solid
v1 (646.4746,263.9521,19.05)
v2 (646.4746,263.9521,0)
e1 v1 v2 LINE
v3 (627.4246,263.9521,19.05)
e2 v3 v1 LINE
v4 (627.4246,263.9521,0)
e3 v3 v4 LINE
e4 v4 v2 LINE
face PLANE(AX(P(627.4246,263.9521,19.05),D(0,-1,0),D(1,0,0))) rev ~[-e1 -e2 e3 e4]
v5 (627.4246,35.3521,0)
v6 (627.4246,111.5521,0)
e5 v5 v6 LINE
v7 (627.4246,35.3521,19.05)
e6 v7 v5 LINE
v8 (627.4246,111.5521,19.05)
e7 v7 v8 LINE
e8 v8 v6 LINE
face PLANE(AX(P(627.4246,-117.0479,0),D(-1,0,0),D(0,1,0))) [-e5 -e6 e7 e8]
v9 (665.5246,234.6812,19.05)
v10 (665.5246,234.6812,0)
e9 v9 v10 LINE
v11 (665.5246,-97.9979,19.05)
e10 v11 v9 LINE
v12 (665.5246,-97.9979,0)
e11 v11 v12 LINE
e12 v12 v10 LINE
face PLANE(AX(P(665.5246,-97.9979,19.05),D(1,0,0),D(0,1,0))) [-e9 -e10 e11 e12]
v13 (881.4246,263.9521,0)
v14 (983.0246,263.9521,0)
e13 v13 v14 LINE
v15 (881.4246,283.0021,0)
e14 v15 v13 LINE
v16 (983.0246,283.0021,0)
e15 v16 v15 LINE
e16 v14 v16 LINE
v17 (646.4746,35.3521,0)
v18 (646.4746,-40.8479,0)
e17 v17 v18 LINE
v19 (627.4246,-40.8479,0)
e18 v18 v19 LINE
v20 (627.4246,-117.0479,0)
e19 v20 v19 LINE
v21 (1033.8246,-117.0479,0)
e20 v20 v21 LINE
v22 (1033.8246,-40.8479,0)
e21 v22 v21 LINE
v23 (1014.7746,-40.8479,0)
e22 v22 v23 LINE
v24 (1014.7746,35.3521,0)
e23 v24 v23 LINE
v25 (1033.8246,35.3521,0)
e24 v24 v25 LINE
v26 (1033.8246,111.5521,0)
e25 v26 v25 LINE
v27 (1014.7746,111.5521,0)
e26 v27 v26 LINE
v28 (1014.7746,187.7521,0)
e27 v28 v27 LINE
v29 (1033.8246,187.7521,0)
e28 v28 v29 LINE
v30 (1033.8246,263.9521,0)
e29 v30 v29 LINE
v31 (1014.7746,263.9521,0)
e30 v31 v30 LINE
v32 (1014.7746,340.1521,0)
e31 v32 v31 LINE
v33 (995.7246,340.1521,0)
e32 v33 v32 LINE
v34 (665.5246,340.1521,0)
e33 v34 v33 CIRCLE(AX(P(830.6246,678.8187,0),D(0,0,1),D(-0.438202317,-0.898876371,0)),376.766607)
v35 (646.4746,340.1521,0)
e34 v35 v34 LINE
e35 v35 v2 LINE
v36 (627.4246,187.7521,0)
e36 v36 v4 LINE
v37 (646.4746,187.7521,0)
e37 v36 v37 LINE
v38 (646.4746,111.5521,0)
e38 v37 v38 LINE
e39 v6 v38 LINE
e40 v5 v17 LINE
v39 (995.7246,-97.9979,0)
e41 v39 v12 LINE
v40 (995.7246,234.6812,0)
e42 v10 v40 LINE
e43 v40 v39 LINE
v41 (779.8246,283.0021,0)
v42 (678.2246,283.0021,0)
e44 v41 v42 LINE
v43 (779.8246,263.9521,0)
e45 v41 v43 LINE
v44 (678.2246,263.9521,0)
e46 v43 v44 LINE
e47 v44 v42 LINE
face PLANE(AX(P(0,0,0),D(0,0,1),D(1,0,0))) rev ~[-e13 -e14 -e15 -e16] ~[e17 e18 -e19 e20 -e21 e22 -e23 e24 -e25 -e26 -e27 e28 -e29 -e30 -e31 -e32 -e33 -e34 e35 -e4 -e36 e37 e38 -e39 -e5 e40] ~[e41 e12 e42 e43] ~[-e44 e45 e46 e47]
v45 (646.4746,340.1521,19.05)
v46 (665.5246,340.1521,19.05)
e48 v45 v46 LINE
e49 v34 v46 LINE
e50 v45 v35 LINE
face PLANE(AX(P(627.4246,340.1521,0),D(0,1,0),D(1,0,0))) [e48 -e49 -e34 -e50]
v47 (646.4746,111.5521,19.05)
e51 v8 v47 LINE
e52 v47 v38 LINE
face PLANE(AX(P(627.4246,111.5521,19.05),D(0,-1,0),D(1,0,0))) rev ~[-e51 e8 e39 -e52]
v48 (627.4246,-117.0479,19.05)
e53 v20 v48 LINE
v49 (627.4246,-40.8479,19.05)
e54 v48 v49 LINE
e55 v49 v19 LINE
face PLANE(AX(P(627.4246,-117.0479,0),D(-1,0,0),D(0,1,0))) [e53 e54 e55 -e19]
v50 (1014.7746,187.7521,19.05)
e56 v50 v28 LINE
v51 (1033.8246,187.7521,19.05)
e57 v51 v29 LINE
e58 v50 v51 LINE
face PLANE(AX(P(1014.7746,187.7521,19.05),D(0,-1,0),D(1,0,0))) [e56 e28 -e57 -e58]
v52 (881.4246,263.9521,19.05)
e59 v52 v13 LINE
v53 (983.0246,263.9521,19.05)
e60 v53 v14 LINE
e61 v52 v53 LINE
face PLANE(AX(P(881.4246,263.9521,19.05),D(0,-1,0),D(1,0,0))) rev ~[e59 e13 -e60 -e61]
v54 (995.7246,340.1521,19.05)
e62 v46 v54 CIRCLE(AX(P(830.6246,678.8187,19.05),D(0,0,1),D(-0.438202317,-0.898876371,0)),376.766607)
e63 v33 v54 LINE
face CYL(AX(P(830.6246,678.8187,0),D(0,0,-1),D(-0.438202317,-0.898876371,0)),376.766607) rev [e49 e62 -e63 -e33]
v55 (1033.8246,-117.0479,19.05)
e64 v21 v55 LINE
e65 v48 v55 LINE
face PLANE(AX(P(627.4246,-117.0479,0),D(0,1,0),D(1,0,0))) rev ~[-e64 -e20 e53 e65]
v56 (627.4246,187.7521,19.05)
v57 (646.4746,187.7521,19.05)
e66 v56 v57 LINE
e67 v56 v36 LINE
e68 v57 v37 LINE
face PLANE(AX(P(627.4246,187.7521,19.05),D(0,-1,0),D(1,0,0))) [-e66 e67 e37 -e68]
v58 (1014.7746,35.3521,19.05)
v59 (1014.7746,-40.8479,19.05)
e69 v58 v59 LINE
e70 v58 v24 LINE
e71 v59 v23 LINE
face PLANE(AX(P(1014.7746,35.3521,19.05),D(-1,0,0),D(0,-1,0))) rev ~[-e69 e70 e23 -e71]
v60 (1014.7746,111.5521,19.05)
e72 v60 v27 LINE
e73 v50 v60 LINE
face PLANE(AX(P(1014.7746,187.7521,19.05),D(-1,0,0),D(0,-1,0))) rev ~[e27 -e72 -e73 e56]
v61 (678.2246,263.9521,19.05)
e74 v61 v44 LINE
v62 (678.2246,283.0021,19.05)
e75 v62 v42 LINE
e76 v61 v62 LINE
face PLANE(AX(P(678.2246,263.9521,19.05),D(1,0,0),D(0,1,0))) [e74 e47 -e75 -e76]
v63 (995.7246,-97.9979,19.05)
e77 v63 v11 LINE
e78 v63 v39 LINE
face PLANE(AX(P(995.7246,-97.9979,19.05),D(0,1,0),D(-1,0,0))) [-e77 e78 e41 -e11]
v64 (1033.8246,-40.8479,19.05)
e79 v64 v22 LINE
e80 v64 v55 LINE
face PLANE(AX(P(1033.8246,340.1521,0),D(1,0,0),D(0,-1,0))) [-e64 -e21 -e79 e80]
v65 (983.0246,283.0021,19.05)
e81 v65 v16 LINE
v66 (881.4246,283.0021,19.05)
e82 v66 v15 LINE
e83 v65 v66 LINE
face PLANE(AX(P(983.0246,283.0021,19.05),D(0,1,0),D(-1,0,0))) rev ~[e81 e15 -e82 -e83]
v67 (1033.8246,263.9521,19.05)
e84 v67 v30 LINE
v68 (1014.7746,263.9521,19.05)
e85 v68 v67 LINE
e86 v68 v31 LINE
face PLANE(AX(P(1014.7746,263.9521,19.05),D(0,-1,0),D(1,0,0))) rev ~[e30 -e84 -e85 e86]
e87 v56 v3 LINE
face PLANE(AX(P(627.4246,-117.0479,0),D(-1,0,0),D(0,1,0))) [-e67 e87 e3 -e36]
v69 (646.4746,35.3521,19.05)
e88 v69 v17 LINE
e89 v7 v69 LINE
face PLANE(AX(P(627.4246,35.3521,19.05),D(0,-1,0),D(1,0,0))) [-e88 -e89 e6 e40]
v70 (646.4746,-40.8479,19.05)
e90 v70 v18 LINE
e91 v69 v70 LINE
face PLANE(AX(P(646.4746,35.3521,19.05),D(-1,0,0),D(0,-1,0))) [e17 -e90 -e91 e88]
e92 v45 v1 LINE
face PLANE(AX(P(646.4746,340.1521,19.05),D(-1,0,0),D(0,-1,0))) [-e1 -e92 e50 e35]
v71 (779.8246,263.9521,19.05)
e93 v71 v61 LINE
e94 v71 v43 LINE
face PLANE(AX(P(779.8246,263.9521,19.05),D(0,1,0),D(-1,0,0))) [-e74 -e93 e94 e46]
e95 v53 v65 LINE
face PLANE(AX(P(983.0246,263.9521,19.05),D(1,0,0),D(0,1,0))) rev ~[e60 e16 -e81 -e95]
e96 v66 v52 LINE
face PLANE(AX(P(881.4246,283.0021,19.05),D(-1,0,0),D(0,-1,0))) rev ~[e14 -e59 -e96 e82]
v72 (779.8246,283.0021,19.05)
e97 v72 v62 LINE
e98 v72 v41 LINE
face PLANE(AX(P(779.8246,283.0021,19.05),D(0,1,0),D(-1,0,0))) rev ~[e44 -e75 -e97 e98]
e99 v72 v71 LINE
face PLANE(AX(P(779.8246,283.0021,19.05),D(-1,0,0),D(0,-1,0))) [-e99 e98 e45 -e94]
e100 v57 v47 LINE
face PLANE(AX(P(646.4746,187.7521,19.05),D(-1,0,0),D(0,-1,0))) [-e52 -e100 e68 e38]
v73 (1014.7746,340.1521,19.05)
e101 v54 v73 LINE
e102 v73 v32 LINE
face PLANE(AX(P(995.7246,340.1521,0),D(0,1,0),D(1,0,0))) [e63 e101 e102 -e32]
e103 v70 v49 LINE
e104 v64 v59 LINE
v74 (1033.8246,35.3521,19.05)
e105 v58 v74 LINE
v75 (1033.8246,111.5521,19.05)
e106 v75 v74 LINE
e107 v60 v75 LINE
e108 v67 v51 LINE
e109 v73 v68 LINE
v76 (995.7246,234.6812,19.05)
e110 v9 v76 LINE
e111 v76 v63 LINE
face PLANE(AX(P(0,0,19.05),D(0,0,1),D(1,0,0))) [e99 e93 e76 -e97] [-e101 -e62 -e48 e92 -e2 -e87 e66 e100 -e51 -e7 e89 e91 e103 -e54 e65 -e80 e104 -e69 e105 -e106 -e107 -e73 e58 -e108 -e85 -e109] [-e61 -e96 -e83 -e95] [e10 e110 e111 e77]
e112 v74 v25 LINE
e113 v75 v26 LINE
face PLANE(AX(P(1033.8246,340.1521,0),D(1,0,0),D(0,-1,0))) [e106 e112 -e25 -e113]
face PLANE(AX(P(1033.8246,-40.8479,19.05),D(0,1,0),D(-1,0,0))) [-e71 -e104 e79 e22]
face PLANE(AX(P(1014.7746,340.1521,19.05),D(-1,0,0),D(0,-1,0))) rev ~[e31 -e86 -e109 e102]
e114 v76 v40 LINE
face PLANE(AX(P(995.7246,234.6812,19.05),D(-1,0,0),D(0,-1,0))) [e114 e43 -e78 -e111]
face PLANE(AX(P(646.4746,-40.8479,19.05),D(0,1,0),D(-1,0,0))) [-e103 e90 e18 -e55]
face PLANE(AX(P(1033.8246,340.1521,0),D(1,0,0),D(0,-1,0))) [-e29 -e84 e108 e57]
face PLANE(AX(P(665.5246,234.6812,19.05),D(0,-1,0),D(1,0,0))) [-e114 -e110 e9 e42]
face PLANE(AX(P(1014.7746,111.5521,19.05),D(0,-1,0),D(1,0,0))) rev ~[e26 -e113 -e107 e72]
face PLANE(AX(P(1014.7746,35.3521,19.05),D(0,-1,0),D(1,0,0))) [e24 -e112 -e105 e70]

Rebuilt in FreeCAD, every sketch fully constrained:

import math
import FreeCAD as App
import Part
import Sketcher

V = App.Vector
Q = App.Units.Quantity

doc = App.newDocument("Part")
body = doc.addObject("PartDesign::Body", "Body")

# Sketch on XY plane
sketch1 = body.newObject("Sketcher::SketchObject", "Sketch")
sketch1.AttachmentSupport = (doc.getObject("XY_Plane"), [""])
sketch1.MapMode = "FlatFace"
sketch1.addGeometry([
    Part.LineSegment(V(1034, -117, 0), V(1034, 340, 0)),  # 0
    Part.LineSegment(V(1034, 340, 0), V(996, 340, 0)),  # 1
    Part.ArcOfCircle(Part.Circle(V(831, 679, 0), V(0, 0, 1), 377), math.radians(-116), math.radians(-64)),  # 2
    Part.LineSegment(V(666, 340, 0), V(627, 340, 0)),  # 3
    Part.LineSegment(V(627, 340, 0), V(627, -117, 0)),  # 4
    Part.LineSegment(V(627, -117, 0), V(1034, -117, 0)),  # 5
], False)
sketch1.addConstraint([
    Sketcher.Constraint("Coincident", 0, 2, 1, 1),
    Sketcher.Constraint("Coincident", 1, 2, 2, 2),
    Sketcher.Constraint("Coincident", 2, 1, 3, 1),
    Sketcher.Constraint("Coincident", 3, 2, 4, 1),
    Sketcher.Constraint("Coincident", 4, 2, 5, 1),
    Sketcher.Constraint("Coincident", 5, 2, 0, 1),
    Sketcher.Constraint("Vertical", 0),
    Sketcher.Constraint("Horizontal", 1),
    Sketcher.Constraint("Horizontal", 3),
    Sketcher.Constraint("Vertical", 4),
    Sketcher.Constraint("Horizontal", 5),
    Sketcher.Constraint("Horizontal", 1, 2, 2, 1),
    Sketcher.Constraint("Equal", 1, 3),
    Sketcher.Constraint("DistanceX", 5, 1, 5, 2, Q("16 in")),
    Sketcher.Constraint("DistanceY", 0, 1, 0, 2, Q("18 in")),
    Sketcher.Constraint("DistanceX", 1, 2, 1, 1, Q("1.5 in")),
    Sketcher.Constraint("Radius", 2, 376.7666),
    Sketcher.Constraint("DistanceX", -1, 1, 2, 3, 830.6246),
    Sketcher.Constraint("DistanceY", -1, 1, 2, 3, 678.8187),
])
pad1 = body.newObject("PartDesign::Pad", "Pad")
pad1.Profile = sketch1
pad1.Length = Q("0.75 in")

# Sketch on XY plane
sketch2 = body.newObject("Sketcher::SketchObject", "Sketch001")
sketch2.AttachmentSupport = (doc.getObject("XY_Plane"), [""])
sketch2.MapMode = "FlatFace"
sketch2.AttachmentOffset = App.Placement(V(0, 0, 0.75 * 25.4), App.Rotation())
sketch2.addGeometry([
    Part.LineSegment(V(1034, 264, 0), V(1034, 340, 0)),  # 0
    Part.LineSegment(V(1034, 340, 0), V(1015, 340, 0)),  # 1
    Part.LineSegment(V(1015, 340, 0), V(1015, 264, 0)),  # 2
    Part.LineSegment(V(1015, 264, 0), V(1034, 264, 0)),  # 3
    Part.LineSegment(V(646, 264, 0), V(646, 340, 0)),  # 4
    Part.LineSegment(V(646, 340, 0), V(627, 340, 0)),  # 5
    Part.LineSegment(V(627, 340, 0), V(627, 264, 0)),  # 6
    Part.LineSegment(V(627, 264, 0), V(646, 264, 0)),  # 7
    Part.LineSegment(V(1034, 112, 0), V(1034, 188, 0)),  # 8
    Part.LineSegment(V(1034, 188, 0), V(1015, 188, 0)),  # 9
    Part.LineSegment(V(1015, 188, 0), V(1015, 112, 0)),  # 10
    Part.LineSegment(V(1015, 112, 0), V(1034, 112, 0)),  # 11
    Part.LineSegment(V(646, 112, 0), V(646, 188, 0)),  # 12
    Part.LineSegment(V(646, 188, 0), V(627, 188, 0)),  # 13
    Part.LineSegment(V(627, 188, 0), V(627, 112, 0)),  # 14
    Part.LineSegment(V(627, 112, 0), V(646, 112, 0)),  # 15
    Part.LineSegment(V(1034, -41, 0), V(1034, 35, 0)),  # 16
    Part.LineSegment(V(1034, 35, 0), V(1015, 35, 0)),  # 17
    Part.LineSegment(V(1015, 35, 0), V(1015, -41, 0)),  # 18
    Part.LineSegment(V(1015, -41, 0), V(1034, -41, 0)),  # 19
    Part.LineSegment(V(646, -41, 0), V(646, 35, 0)),  # 20
    Part.LineSegment(V(646, 35, 0), V(627, 35, 0)),  # 21
    Part.LineSegment(V(627, 35, 0), V(627, -41, 0)),  # 22
    Part.LineSegment(V(627, -41, 0), V(646, -41, 0)),  # 23
], False)
sketch2.addConstraint([
    Sketcher.Constraint("Coincident", 0, 2, 1, 1),
    Sketcher.Constraint("Coincident", 1, 2, 2, 1),
    Sketcher.Constraint("Coincident", 2, 2, 3, 1),
    Sketcher.Constraint("Coincident", 3, 2, 0, 1),
    Sketcher.Constraint("Coincident", 4, 2, 5, 1),
    Sketcher.Constraint("Coincident", 5, 2, 6, 1),
    Sketcher.Constraint("Coincident", 6, 2, 7, 1),
    Sketcher.Constraint("Coincident", 7, 2, 4, 1),
    Sketcher.Constraint("Coincident", 8, 2, 9, 1),
    Sketcher.Constraint("Coincident", 9, 2, 10, 1),
    Sketcher.Constraint("Coincident", 10, 2, 11, 1),
    Sketcher.Constraint("Coincident", 11, 2, 8, 1),
    Sketcher.Constraint("Coincident", 12, 2, 13, 1),
    Sketcher.Constraint("Coincident", 13, 2, 14, 1),
    Sketcher.Constraint("Coincident", 14, 2, 15, 1),
    Sketcher.Constraint("Coincident", 15, 2, 12, 1),
    Sketcher.Constraint("Coincident", 16, 2, 17, 1),
    Sketcher.Constraint("Coincident", 17, 2, 18, 1),
    Sketcher.Constraint("Coincident", 18, 2, 19, 1),
    Sketcher.Constraint("Coincident", 19, 2, 16, 1),
    Sketcher.Constraint("Coincident", 20, 2, 21, 1),
    Sketcher.Constraint("Coincident", 21, 2, 22, 1),
    Sketcher.Constraint("Coincident", 22, 2, 23, 1),
    Sketcher.Constraint("Coincident", 23, 2, 20, 1),
    Sketcher.Constraint("Vertical", 0),
    Sketcher.Constraint("Horizontal", 1),
    Sketcher.Constraint("Vertical", 2),
    Sketcher.Constraint("Horizontal", 3),
    Sketcher.Constraint("Vertical", 4),
    Sketcher.Constraint("Horizontal", 5),
    Sketcher.Constraint("Vertical", 6),
    Sketcher.Constraint("Horizontal", 7),
    Sketcher.Constraint("Vertical", 8),
    Sketcher.Constraint("Horizontal", 9),
    Sketcher.Constraint("Vertical", 10),
    Sketcher.Constraint("Horizontal", 11),
    Sketcher.Constraint("Vertical", 12),
    Sketcher.Constraint("Horizontal", 13),
    Sketcher.Constraint("Vertical", 14),
    Sketcher.Constraint("Horizontal", 15),
    Sketcher.Constraint("Vertical", 16),
    Sketcher.Constraint("Horizontal", 17),
    Sketcher.Constraint("Vertical", 18),
    Sketcher.Constraint("Horizontal", 19),
    Sketcher.Constraint("Vertical", 20),
    Sketcher.Constraint("Horizontal", 21),
    Sketcher.Constraint("Vertical", 22),
    Sketcher.Constraint("Horizontal", 23),
    Sketcher.Constraint("Horizontal", 1, 2, 4, 2),
    Sketcher.Constraint("Horizontal", 3, 2, 6, 2),
    Sketcher.Constraint("Horizontal", 9, 2, 12, 2),
    Sketcher.Constraint("Horizontal", 11, 2, 14, 2),
    Sketcher.Constraint("Horizontal", 17, 2, 20, 2),
    Sketcher.Constraint("Horizontal", 19, 2, 22, 2),
    Sketcher.Constraint("Vertical", 3, 2, 8, 2),
    Sketcher.Constraint("Vertical", 2, 2, 9, 2),
    Sketcher.Constraint("Vertical", 7, 2, 12, 2),
    Sketcher.Constraint("Vertical", 6, 2, 13, 2),
    Sketcher.Constraint("Vertical", 11, 2, 16, 2),
    Sketcher.Constraint("Vertical", 10, 2, 17, 2),
    Sketcher.Constraint("Vertical", 15, 2, 20, 2),
    Sketcher.Constraint("Vertical", 14, 2, 21, 2),
    Sketcher.Constraint("Equal", 3, 5),
    Sketcher.Constraint("Equal", 6, 8),
    Sketcher.Constraint("Equal", 14, 16),
    Sketcher.Constraint("DistanceX", 1, 2, 1, 1, Q("0.75 in")),
    Sketcher.Constraint("DistanceY", 0, 1, 0, 2, Q("3 in")),
    Sketcher.Constraint("DistanceX", 5, 2, 0, 2, Q("16 in")),
    Sketcher.Constraint("DistanceY", 8, 2, 3, 2, Q("3 in")),
    Sketcher.Constraint("DistanceY", 16, 2, 11, 2, Q("3 in")),
    Sketcher.Constraint("DistanceX", -1, 1, 0, 2, 1033.8246),
    Sketcher.Constraint("DistanceY", -1, 1, 0, 2, Q("13.391811 in")),
])
pocket1 = body.newObject("PartDesign::Pocket", "Pocket")
pocket1.Profile = sketch2
pocket1.Length = Q("0.75 in")

# Sketch on XY plane
sketch3 = body.newObject("Sketcher::SketchObject", "Sketch002")
sketch3.AttachmentSupport = (doc.getObject("XY_Plane"), [""])
sketch3.MapMode = "FlatFace"
sketch3.AttachmentOffset = App.Placement(V(0, 0, 0.75 * 25.4), App.Rotation())
sketch3.addGeometry([
    Part.LineSegment(V(983, 264, 0), V(983, 283, 0)),  # 0
    Part.LineSegment(V(983, 283, 0), V(881, 283, 0)),  # 1
    Part.LineSegment(V(881, 283, 0), V(881, 264, 0)),  # 2
    Part.LineSegment(V(881, 264, 0), V(983, 264, 0)),  # 3
    Part.LineSegment(V(780, 264, 0), V(780, 283, 0)),  # 4
    Part.LineSegment(V(780, 283, 0), V(678, 283, 0)),  # 5
    Part.LineSegment(V(678, 283, 0), V(678, 264, 0)),  # 6
    Part.LineSegment(V(678, 264, 0), V(780, 264, 0)),  # 7
], False)
sketch3.addConstraint([
    Sketcher.Constraint("Coincident", 0, 2, 1, 1),
    Sketcher.Constraint("Coincident", 1, 2, 2, 1),
    Sketcher.Constraint("Coincident", 2, 2, 3, 1),
    Sketcher.Constraint("Coincident", 3, 2, 0, 1),
    Sketcher.Constraint("Coincident", 4, 2, 5, 1),
    Sketcher.Constraint("Coincident", 5, 2, 6, 1),
    Sketcher.Constraint("Coincident", 6, 2, 7, 1),
    Sketcher.Constraint("Coincident", 7, 2, 4, 1),
    Sketcher.Constraint("Vertical", 0),
    Sketcher.Constraint("Horizontal", 1),
    Sketcher.Constraint("Vertical", 2),
    Sketcher.Constraint("Horizontal", 3),
    Sketcher.Constraint("Vertical", 4),
    Sketcher.Constraint("Horizontal", 5),
    Sketcher.Constraint("Vertical", 6),
    Sketcher.Constraint("Horizontal", 7),
    Sketcher.Constraint("Horizontal", 1, 2, 4, 2),
    Sketcher.Constraint("Horizontal", 3, 2, 6, 2),
    Sketcher.Constraint("Equal", 3, 5),
    Sketcher.Constraint("DistanceX", 1, 2, 1, 1, Q("4 in")),
    Sketcher.Constraint("DistanceX", 4, 2, 1, 2, Q("4 in")),
    Sketcher.Constraint("DistanceY", 0, 1, 0, 2, Q("0.75 in")),
    Sketcher.Constraint("DistanceX", -1, 1, 0, 2, 983.0246),
    Sketcher.Constraint("DistanceY", -1, 1, 0, 2, Q("11.141811 in")),
])
pocket2 = body.newObject("PartDesign::Pocket", "Pocket001")
pocket2.Profile = sketch3
pocket2.Length = Q("1 in")

# Sketch on XY plane
sketch4 = body.newObject("Sketcher::SketchObject", "Sketch003")
sketch4.AttachmentSupport = (doc.getObject("XY_Plane"), [""])
sketch4.MapMode = "FlatFace"
sketch4.AttachmentOffset = App.Placement(V(0, 0, 0.75 * 25.4), App.Rotation())
sketch4.addGeometry([
    Part.LineSegment(V(996, 235, 0), V(666, 235, 0)),
    Part.LineSegment(V(666, 235, 0), V(666, -98, 0)),
    Part.LineSegment(V(666, -98, 0), V(996, -98, 0)),
    Part.LineSegment(V(996, -98, 0), V(996, 235, 0)),
], False)
sketch4.addConstraint([
    Sketcher.Constraint("Coincident", 0, 2, 1, 1),
    Sketcher.Constraint("Coincident", 1, 2, 2, 1),
    Sketcher.Constraint("Coincident", 2, 2, 3, 1),
    Sketcher.Constraint("Coincident", 3, 2, 0, 1),
    Sketcher.Constraint("Horizontal", 0),
    Sketcher.Constraint("Vertical", 1),
    Sketcher.Constraint("Horizontal", 2),
    Sketcher.Constraint("Vertical", 3),
    Sketcher.Constraint("DistanceX", 0, 2, 0, 1, Q("13 in")),
    Sketcher.Constraint("DistanceY", 1, 2, 1, 1, Q("13.0976 in")),
    Sketcher.Constraint("DistanceX", -1, 1, 0, 2, 665.5246),
    Sketcher.Constraint("DistanceY", -1, 1, 0, 2, 234.6812),
])
pocket3 = body.newObject("PartDesign::Pocket", "Pocket002")
pocket3.Profile = sketch4
pocket3.Length = Q("1 in")

doc.recompute()
